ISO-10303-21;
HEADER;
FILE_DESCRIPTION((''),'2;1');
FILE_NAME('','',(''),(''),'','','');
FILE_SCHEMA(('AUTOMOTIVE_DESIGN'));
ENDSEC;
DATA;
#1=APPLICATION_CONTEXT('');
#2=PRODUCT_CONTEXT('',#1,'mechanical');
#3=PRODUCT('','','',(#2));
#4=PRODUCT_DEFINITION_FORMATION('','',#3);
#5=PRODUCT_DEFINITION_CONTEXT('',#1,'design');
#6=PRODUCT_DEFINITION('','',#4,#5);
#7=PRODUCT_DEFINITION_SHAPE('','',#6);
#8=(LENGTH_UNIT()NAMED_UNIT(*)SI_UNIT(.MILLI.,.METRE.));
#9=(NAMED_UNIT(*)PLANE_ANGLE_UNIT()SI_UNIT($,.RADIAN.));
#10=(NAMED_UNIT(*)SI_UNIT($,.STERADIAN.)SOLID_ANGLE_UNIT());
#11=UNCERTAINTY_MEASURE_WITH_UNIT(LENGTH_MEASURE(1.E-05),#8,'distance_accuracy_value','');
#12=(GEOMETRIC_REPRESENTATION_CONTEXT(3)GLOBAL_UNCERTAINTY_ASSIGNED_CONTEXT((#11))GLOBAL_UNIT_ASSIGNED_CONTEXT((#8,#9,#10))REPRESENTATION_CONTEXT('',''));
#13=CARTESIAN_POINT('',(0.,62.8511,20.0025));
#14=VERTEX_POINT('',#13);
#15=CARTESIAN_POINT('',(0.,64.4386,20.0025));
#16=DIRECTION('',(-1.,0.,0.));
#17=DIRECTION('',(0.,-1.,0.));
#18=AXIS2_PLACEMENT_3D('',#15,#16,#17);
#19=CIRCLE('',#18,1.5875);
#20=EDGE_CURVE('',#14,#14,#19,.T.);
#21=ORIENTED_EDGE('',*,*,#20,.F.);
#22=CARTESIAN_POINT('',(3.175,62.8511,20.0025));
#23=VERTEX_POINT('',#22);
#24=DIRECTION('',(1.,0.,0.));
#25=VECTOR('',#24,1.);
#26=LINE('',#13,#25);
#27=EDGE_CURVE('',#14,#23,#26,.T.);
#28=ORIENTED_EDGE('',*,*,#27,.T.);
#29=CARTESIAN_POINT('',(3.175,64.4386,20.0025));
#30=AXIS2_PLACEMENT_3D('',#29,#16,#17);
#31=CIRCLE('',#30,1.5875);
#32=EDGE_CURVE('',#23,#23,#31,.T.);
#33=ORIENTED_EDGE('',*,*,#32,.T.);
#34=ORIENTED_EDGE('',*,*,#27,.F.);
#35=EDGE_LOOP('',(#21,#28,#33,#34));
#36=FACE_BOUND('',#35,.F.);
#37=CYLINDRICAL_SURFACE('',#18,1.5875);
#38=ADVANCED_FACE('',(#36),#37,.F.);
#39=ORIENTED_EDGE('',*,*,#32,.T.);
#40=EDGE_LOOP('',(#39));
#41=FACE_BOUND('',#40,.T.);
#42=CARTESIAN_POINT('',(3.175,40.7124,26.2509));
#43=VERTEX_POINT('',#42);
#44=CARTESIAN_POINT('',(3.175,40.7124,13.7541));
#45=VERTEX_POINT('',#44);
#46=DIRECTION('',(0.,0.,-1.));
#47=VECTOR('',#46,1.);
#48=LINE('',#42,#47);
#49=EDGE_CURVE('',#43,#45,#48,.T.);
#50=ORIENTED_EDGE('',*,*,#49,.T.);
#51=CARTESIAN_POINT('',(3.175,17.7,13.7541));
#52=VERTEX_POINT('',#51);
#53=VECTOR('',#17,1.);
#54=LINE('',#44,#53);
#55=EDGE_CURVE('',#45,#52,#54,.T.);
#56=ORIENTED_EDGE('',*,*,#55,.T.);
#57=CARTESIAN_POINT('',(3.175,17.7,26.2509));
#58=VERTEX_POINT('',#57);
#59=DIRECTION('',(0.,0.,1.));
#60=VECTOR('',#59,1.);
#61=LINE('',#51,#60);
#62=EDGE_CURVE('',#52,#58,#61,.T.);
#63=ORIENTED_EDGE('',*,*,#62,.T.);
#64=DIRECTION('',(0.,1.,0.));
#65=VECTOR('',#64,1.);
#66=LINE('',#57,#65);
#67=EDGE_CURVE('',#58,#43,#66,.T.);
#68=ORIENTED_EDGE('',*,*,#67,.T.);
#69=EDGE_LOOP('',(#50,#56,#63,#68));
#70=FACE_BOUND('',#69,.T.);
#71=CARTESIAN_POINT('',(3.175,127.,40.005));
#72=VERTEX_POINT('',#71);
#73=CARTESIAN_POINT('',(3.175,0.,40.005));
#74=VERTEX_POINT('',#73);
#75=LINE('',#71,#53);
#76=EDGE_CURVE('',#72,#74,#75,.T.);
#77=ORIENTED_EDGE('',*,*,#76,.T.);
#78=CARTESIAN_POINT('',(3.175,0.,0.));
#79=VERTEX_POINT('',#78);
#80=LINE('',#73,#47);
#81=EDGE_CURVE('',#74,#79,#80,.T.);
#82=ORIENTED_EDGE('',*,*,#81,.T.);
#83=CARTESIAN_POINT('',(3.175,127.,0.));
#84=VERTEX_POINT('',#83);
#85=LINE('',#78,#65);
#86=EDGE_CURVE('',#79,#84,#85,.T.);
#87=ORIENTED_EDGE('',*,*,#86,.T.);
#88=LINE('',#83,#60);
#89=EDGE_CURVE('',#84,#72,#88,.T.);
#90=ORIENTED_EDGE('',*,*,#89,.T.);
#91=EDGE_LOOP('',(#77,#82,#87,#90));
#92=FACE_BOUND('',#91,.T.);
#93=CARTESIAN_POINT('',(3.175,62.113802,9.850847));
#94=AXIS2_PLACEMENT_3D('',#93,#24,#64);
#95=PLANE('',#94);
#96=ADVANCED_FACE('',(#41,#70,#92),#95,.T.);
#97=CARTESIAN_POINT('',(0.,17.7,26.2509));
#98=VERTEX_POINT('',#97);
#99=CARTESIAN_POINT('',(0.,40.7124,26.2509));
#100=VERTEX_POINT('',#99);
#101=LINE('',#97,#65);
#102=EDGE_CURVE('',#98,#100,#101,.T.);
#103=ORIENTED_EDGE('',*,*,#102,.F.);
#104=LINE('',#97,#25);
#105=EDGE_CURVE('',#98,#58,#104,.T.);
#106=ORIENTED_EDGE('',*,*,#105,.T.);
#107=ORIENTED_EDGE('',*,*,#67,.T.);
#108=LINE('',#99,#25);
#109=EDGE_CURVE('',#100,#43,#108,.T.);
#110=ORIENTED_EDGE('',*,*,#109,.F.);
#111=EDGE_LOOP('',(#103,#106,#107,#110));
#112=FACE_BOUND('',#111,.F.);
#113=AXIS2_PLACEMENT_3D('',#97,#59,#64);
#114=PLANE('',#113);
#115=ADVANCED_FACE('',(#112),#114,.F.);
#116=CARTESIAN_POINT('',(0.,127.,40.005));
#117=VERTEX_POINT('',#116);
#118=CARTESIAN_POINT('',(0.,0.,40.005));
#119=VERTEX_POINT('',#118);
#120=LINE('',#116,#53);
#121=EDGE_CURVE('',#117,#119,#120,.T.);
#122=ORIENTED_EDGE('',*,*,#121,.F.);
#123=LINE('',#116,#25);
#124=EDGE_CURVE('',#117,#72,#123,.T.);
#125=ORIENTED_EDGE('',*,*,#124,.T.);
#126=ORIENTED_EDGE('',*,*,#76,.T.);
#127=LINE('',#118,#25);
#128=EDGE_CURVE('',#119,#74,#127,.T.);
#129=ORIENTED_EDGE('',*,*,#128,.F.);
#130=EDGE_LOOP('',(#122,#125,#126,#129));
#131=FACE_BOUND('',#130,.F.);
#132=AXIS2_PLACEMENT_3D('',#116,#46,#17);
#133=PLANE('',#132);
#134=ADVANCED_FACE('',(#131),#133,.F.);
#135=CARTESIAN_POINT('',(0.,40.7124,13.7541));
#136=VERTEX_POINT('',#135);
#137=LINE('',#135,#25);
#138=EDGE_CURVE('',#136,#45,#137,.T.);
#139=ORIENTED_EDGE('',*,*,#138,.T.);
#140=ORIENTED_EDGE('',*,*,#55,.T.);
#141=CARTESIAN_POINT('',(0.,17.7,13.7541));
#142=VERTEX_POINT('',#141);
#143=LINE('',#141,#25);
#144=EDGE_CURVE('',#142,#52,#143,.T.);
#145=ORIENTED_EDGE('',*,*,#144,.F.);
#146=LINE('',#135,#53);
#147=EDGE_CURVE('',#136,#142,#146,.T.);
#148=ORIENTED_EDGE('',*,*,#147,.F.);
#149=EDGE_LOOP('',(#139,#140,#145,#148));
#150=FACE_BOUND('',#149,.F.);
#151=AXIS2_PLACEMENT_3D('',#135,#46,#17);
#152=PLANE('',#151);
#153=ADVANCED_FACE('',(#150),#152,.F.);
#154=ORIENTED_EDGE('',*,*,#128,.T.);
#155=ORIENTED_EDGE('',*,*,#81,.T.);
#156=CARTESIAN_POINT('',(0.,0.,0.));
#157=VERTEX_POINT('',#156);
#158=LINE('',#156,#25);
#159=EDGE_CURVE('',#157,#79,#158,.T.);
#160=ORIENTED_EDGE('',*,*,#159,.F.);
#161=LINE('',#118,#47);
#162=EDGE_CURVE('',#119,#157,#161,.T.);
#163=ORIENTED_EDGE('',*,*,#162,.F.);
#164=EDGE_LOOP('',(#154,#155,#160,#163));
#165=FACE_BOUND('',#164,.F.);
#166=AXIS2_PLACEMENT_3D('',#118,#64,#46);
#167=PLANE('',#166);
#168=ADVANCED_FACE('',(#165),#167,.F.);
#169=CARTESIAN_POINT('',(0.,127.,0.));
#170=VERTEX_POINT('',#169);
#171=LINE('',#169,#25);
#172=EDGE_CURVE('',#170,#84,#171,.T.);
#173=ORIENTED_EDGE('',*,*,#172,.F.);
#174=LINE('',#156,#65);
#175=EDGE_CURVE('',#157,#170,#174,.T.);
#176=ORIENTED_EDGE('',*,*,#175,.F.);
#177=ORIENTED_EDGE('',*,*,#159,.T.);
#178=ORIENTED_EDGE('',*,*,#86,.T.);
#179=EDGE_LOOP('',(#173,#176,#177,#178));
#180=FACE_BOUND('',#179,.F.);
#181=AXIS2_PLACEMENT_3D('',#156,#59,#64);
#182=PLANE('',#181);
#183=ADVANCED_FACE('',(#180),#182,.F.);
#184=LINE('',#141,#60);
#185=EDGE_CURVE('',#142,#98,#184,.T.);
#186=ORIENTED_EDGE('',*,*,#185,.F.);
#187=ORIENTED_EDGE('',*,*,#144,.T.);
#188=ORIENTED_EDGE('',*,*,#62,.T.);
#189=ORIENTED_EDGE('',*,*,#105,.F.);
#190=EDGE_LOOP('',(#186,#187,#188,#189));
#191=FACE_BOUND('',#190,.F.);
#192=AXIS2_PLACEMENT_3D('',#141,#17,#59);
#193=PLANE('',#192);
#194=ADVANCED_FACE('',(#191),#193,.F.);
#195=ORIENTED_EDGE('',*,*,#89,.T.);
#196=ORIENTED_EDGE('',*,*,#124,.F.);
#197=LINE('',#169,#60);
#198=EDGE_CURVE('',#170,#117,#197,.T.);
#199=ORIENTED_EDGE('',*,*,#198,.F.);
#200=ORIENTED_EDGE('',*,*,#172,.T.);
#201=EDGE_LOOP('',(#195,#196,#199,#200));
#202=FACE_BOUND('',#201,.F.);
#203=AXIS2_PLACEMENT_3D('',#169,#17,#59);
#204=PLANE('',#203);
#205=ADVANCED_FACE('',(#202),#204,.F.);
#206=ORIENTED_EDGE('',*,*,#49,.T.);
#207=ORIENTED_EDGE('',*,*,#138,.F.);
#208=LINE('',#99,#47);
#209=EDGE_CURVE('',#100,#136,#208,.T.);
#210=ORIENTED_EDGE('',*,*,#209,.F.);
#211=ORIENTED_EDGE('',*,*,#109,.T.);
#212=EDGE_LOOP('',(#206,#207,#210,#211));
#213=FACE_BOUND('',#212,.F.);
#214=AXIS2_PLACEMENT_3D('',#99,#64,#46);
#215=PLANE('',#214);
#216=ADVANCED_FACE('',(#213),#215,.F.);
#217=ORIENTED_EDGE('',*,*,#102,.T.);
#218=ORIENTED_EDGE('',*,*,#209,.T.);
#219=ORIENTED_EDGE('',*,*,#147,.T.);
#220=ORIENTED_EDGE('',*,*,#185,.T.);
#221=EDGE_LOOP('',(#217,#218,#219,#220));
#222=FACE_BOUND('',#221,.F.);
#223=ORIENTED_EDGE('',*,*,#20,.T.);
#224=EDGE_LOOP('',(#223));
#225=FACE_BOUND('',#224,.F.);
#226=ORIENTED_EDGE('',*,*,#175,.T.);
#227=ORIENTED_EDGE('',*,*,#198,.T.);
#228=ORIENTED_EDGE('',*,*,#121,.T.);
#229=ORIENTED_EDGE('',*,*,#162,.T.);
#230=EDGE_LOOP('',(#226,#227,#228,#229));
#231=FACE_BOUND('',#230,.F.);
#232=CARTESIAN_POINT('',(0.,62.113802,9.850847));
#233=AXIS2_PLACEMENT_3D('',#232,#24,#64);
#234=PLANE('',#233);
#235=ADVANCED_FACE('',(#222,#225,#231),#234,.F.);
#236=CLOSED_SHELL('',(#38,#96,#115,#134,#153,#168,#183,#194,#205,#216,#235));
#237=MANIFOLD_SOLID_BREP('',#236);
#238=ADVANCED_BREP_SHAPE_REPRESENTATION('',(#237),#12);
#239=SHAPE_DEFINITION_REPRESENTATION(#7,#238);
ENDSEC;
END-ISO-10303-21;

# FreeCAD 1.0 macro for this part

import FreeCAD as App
import Part
import Sketcher
Q = App.Units.Quantity


def add_polygon(sketch, points):
    """Adds a closed chain of lines whose ends are joined by coincident constraints."""
    first, n = sketch.GeometryCount, len(points)
    for a, b in zip(points, points[1:] + points[:1]):
        sketch.addGeometry(Part.LineSegment(App.Vector(*a, 0), App.Vector(*b, 0)), False)
    for i in range(n):
        sketch.addConstraint(Sketcher.Constraint("Coincident", first + i, 2, first + (i + 1) % n, 1))

doc = App.newDocument("Part")
body = doc.addObject("PartDesign::Body", "Body")

sketch1 = body.newObject("Sketcher::SketchObject", "Sketch")
sketch1.AttachmentSupport = (doc.getObject("YZ_Plane"), [""])
sketch1.MapMode = "FlatFace"
add_polygon(sketch1, [(0, 0), (127, 0), (127, 40.005), (0, 40.005)])
sketch1.addGeometry(Part.Circle(App.Vector(64.4386, 20.0025, 0), App.Vector(0, 0, 1), 1.5875), False)
add_polygon(sketch1, [(40.7124, 13.7541), (17.7, 13.7541), (17.7, 26.2509), (40.7124, 26.2509)])
sketch1.addConstraint([
    Sketcher.Constraint("Horizontal", 0),
    Sketcher.Constraint("Vertical", 1),
    Sketcher.Constraint("Horizontal", 2),
    Sketcher.Constraint("Vertical", 3),
    Sketcher.Constraint("Horizontal", 5),
    Sketcher.Constraint("Vertical", 6),
    Sketcher.Constraint("Horizontal", 7),
    Sketcher.Constraint("Vertical", 8),
    Sketcher.Constraint("Coincident", 3, 2, -1, 1),
    Sketcher.Constraint("DistanceX", 0, 1, 0, 2, Q("5 in")),
    Sketcher.Constraint("Diameter", 4, Q("0.125 in")),
    Sketcher.Constraint("DistanceX", 5, 2, 5, 1, Q("0.906 in")),
    Sketcher.Constraint("DistanceY", 1, 1, 1, 2, Q("1.575 in")),
    Sketcher.Constraint("DistanceY", 6, 1, 6, 2, Q("0.492 in")),
    Sketcher.Constraint("DistanceY", 5, 2, 4, 3, Q("0.246 in")),
    Sketcher.Constraint("DistanceY", -1, 1, 4, 3, Q("0.7875 in")),
    Sketcher.Constraint("DistanceX", -1, 1, 4, 3, 64.4386),
    Sketcher.Constraint("DistanceX", -1, 1, 5, 2, 17.7),
])
pad1 = body.newObject("PartDesign::Pad", "Pad")
pad1.Profile = sketch1
pad1.Length = Q("0.125 in")

doc.recompute()
